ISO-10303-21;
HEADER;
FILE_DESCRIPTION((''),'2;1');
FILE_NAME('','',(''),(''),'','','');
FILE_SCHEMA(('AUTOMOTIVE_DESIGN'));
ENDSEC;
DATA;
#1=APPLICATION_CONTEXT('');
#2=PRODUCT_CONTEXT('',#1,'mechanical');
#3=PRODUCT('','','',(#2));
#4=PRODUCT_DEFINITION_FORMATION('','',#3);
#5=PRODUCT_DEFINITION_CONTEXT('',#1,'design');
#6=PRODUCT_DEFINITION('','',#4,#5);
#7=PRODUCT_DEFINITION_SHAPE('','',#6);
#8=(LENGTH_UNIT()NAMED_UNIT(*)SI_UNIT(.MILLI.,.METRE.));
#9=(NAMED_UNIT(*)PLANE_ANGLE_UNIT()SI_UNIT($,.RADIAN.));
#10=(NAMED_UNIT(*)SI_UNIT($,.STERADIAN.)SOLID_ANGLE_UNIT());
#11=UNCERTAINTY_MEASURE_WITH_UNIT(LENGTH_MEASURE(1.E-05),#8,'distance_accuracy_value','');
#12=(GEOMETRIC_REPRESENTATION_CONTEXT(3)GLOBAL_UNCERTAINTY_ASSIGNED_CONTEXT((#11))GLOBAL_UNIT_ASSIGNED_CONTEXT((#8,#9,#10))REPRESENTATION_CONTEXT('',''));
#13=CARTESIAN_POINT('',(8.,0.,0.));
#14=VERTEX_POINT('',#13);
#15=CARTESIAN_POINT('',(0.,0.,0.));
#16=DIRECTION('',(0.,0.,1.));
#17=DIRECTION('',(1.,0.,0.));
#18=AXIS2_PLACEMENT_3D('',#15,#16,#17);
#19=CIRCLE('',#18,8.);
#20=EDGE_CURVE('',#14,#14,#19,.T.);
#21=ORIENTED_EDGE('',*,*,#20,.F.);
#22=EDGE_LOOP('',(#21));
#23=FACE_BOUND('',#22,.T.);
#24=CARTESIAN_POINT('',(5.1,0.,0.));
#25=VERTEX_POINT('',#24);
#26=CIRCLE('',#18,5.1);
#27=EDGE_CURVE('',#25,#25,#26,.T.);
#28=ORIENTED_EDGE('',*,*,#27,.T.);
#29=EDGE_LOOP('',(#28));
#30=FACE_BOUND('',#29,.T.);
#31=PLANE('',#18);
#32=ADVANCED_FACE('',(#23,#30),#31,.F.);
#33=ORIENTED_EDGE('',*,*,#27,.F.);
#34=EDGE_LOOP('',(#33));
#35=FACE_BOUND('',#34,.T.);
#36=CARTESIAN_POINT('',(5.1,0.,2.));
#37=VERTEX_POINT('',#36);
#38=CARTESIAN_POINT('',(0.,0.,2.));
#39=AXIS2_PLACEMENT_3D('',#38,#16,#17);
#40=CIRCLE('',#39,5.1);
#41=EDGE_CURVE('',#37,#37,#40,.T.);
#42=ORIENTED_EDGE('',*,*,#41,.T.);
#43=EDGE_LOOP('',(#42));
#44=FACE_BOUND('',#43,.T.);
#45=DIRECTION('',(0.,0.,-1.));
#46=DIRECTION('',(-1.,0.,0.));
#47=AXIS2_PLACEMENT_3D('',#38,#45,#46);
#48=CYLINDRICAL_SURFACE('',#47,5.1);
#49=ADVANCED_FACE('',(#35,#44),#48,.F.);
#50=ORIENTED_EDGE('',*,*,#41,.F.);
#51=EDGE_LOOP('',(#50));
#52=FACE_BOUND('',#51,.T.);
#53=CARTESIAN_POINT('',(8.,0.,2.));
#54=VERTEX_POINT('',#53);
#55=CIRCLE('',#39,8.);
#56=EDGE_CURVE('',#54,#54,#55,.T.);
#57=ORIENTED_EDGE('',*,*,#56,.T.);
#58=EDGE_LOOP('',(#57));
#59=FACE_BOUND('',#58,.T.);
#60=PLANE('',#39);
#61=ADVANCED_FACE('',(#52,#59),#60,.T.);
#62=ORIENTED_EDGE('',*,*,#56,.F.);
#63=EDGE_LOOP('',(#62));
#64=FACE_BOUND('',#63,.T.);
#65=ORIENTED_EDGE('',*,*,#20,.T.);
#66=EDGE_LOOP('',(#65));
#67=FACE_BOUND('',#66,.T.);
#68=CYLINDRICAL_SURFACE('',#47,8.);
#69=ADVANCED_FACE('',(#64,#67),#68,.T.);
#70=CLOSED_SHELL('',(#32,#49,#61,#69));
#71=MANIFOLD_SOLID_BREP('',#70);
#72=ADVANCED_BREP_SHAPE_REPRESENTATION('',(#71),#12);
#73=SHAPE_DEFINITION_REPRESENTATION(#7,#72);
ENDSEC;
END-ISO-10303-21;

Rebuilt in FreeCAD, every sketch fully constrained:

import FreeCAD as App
import Part
import Sketcher

doc = App.newDocument("Part")
body = doc.addObject("PartDesign::Body", "Body")

# Sketch on XY plane
sketch1 = body.newObject("Sketcher::SketchObject", "Sketch")
sketch1.AttachmentSupport = (doc.getObject("XY_Plane"), [""])
sketch1.MapMode = "FlatFace"
sketch1.addGeometry([
    Part.Circle(App.Vector(0, 0, 0), App.Vector(0, 0, 1), 8),
    Part.Circle(App.Vector(0, 0, 0), App.Vector(0, 0, 1), 5),
], False)
sketch1.addConstraint([
    Sketcher.Constraint("Coincident", 0, 3, -1, 1),
    Sketcher.Constraint("Coincident", 1, 3, -1, 1),
    Sketcher.Constraint("Diameter", 0, 16.0),
    Sketcher.Constraint("Diameter", 1, 10.2),
])
pad1 = body.newObject("PartDesign::Pad", "Pad")
pad1.Profile = sketch1
pad1.Length = 2

doc.recompute()
